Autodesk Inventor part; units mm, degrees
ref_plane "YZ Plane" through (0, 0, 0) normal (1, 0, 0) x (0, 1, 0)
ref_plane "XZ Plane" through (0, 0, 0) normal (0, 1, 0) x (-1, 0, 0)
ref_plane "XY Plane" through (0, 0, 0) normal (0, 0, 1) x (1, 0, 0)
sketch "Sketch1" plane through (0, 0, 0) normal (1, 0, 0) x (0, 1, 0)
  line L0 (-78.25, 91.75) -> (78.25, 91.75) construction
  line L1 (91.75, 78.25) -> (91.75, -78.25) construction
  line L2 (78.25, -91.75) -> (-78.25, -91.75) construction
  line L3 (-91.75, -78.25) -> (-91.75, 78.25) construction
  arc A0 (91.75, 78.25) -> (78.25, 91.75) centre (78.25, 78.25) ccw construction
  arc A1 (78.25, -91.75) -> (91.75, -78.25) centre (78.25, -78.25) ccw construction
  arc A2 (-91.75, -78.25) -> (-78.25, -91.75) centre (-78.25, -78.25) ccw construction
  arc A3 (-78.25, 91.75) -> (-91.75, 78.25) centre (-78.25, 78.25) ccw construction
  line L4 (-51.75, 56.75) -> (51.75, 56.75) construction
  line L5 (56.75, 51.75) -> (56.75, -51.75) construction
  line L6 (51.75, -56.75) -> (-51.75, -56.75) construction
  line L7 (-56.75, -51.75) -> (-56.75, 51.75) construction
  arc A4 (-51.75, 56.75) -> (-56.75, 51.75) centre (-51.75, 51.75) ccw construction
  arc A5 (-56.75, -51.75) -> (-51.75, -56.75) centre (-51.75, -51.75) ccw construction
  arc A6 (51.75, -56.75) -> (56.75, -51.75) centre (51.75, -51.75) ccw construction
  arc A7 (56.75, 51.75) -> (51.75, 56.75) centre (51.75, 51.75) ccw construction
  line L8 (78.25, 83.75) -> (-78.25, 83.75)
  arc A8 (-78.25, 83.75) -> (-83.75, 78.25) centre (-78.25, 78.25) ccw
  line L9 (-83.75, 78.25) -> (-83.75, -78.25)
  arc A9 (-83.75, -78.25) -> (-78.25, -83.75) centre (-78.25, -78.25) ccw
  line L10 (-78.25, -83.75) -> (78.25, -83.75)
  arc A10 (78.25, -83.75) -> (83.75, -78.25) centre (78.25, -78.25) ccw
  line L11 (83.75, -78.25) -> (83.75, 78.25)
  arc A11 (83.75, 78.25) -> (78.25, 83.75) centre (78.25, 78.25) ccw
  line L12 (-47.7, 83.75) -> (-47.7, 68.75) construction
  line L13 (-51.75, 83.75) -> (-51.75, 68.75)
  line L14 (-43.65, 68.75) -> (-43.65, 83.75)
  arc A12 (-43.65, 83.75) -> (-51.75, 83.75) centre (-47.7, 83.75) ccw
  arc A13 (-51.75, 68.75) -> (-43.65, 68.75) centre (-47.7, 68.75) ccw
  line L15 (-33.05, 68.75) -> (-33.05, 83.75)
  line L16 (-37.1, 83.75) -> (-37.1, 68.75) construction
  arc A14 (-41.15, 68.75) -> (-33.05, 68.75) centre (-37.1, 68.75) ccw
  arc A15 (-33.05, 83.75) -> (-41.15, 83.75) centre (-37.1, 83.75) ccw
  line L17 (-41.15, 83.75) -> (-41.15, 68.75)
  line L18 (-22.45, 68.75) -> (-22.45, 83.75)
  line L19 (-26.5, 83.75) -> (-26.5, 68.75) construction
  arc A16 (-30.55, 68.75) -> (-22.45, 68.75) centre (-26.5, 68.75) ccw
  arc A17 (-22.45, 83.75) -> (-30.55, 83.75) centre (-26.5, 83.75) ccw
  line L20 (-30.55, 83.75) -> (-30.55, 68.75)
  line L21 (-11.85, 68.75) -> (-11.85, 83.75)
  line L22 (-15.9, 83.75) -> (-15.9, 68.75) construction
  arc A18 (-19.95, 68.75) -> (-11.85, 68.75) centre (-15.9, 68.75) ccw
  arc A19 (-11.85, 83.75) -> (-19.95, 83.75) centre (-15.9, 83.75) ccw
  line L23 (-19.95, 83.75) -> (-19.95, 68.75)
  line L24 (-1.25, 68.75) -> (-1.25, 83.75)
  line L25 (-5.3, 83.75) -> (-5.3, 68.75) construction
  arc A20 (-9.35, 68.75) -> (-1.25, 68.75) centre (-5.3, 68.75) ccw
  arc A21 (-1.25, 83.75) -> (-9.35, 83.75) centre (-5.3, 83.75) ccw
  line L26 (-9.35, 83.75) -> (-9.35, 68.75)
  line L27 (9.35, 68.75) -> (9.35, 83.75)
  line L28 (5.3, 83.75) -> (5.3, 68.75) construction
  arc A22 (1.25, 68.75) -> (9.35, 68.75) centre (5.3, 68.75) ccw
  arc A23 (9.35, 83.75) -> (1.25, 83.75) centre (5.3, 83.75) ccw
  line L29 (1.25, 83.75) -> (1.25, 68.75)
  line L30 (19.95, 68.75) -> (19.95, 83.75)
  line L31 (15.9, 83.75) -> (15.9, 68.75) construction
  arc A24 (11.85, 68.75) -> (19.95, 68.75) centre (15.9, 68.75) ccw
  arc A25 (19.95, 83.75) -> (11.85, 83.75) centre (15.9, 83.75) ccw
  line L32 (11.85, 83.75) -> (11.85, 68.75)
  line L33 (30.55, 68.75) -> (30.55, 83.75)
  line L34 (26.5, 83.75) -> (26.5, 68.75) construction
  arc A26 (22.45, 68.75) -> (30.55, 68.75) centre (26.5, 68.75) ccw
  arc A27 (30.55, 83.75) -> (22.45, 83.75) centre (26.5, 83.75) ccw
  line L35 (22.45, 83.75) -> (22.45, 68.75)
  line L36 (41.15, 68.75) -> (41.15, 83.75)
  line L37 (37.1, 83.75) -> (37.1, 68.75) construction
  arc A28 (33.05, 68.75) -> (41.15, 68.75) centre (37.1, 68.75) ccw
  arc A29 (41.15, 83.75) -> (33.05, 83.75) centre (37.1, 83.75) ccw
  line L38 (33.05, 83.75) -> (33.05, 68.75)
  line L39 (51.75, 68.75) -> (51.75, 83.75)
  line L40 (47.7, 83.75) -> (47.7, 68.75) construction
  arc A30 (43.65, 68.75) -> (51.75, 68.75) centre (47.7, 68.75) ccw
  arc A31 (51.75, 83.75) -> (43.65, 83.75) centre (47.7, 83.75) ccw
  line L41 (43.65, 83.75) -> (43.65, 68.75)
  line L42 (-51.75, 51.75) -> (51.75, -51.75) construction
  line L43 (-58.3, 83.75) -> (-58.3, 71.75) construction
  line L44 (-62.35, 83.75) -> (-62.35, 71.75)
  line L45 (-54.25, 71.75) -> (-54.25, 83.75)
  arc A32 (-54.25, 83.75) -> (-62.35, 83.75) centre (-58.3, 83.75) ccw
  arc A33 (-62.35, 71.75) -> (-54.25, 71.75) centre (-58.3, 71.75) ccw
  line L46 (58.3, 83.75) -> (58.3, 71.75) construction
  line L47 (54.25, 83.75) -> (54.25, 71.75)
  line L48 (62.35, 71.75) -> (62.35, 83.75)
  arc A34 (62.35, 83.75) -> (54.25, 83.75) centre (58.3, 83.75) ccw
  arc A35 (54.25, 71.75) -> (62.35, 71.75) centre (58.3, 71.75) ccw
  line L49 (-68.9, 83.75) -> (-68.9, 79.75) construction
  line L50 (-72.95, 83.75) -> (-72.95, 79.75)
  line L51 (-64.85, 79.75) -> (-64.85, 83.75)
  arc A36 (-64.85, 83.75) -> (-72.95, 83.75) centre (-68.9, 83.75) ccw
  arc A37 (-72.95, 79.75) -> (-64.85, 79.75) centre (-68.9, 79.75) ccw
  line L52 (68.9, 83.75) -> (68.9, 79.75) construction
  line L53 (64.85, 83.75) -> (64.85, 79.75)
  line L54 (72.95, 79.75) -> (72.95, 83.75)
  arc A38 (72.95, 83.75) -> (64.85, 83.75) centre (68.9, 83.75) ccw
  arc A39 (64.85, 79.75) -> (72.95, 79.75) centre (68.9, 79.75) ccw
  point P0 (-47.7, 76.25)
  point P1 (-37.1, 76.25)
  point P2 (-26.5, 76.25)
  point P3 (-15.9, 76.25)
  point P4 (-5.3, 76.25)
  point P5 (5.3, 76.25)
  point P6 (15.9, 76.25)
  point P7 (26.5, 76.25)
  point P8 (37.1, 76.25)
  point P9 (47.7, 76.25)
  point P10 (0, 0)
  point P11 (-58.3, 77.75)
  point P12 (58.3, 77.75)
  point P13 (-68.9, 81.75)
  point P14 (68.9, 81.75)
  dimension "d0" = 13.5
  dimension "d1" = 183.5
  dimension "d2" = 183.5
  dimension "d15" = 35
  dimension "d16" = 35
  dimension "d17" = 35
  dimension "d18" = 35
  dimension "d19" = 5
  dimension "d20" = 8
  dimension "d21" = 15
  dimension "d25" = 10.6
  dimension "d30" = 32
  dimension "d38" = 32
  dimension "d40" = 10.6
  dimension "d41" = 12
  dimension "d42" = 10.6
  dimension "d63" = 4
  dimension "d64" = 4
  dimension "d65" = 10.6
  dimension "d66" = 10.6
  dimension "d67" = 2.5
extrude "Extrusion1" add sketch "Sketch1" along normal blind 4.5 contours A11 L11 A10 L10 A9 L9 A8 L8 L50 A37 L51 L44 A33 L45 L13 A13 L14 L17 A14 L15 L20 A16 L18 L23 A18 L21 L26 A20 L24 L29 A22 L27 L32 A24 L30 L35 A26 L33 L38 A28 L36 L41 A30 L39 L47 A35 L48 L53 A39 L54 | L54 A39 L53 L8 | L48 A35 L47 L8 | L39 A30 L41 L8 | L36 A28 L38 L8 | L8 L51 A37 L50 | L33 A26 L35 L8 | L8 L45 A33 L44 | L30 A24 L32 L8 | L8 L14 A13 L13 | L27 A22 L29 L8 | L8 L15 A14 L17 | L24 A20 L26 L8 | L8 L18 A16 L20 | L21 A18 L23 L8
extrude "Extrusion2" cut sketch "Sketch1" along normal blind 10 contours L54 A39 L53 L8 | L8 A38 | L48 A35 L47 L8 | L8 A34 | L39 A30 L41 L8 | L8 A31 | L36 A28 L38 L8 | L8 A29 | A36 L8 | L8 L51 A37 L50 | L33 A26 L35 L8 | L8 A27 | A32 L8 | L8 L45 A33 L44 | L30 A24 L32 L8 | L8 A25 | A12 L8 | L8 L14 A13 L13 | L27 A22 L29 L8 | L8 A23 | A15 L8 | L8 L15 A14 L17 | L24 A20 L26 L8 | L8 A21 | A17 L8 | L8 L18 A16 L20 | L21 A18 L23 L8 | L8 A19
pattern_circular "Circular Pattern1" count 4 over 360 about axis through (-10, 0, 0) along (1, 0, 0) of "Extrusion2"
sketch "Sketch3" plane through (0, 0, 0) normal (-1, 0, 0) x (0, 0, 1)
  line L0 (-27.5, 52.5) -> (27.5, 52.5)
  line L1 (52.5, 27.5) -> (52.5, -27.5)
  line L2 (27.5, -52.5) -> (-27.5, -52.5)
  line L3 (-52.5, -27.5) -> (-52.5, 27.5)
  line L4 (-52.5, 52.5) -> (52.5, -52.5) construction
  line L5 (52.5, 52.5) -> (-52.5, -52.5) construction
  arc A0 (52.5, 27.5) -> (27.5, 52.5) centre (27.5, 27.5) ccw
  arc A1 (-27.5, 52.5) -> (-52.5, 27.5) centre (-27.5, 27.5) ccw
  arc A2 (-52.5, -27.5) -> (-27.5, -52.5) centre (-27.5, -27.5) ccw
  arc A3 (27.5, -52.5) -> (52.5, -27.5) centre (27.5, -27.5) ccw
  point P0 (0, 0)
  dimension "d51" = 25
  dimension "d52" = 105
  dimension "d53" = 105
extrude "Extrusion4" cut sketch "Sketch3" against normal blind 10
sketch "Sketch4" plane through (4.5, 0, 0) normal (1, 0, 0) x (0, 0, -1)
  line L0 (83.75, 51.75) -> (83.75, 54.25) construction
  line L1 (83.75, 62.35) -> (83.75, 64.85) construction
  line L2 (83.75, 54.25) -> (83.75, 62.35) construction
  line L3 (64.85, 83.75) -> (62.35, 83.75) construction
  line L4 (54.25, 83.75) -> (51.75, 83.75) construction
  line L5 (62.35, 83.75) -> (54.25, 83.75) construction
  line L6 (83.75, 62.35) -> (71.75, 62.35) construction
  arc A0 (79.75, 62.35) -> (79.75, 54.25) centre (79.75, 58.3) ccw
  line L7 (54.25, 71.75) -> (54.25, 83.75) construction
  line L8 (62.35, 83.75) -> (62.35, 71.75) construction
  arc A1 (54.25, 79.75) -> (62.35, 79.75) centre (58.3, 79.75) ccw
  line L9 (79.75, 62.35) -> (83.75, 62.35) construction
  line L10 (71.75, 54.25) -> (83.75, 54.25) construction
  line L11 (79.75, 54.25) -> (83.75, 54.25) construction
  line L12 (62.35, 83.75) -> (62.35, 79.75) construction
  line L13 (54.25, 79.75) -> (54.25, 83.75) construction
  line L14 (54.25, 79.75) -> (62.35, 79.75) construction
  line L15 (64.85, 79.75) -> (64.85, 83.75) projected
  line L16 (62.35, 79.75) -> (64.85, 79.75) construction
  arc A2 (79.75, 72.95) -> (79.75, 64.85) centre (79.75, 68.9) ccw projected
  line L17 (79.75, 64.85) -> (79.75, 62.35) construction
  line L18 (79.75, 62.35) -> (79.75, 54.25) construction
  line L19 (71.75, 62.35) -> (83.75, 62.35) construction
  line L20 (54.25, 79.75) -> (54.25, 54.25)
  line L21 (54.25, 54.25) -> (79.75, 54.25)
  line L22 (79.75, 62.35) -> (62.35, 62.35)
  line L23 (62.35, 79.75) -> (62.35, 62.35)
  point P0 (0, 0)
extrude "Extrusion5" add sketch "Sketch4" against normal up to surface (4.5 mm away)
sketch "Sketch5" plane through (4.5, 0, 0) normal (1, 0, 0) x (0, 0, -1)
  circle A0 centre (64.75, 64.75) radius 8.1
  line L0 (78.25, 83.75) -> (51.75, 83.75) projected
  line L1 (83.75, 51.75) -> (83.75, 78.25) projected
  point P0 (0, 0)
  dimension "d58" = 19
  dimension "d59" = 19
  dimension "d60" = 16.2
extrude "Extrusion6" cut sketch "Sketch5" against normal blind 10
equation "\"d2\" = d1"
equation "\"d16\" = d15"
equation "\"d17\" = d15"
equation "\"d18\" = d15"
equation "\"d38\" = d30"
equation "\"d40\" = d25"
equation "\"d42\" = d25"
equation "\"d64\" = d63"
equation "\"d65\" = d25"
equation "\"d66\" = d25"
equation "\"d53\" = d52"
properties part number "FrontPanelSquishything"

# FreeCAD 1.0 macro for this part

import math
import FreeCAD as App
import Part
import Sketcher
Q = App.Units.Quantity

doc = App.newDocument("Part")
body = doc.addObject("PartDesign::Body", "Body")

# Sketch on YZ plane
sketch1 = body.newObject("Sketcher::SketchObject", "Sketch")
sketch1.AttachmentSupport = (doc.getObject("YZ_Plane"), [""])
sketch1.MapMode = "FlatFace"
sketch1.addGeometry([
    Part.ArcOfCircle(Part.Circle(App.Vector(78.25, 78.25, 0), App.Vector(0, 0, 1), 5.5), math.radians(0), math.radians(90)),  # 0
    Part.LineSegment(App.Vector(78.25, 83.75, 0), App.Vector(-78.25, 83.75, 0)),  # 1
    Part.ArcOfCircle(Part.Circle(App.Vector(-78.25, 78.25, 0), App.Vector(0, 0, 1), 5.5), math.radians(90), math.radians(180)),  # 2
    Part.LineSegment(App.Vector(-83.75, 78.25, 0), App.Vector(-83.75, -78.25, 0)),  # 3
    Part.ArcOfCircle(Part.Circle(App.Vector(-78.25, -78.25, 0), App.Vector(0, 0, 1), 5.5), math.radians(180), math.radians(270)),  # 4
    Part.LineSegment(App.Vector(-78.25, -83.75, 0), App.Vector(78.25, -83.75, 0)),  # 5
    Part.ArcOfCircle(Part.Circle(App.Vector(78.25, -78.25, 0), App.Vector(0, 0, 1), 5.5), math.radians(-90), math.radians(0)),  # 6
    Part.LineSegment(App.Vector(83.75, -78.25, 0), App.Vector(83.75, 78.25, 0)),  # 7
], False)
sketch1.addConstraint([
    Sketcher.Constraint("Tangent", 0, 2, 1, 1),
    Sketcher.Constraint("Tangent", 1, 2, 2, 1),
    Sketcher.Constraint("Tangent", 2, 2, 3, 1),
    Sketcher.Constraint("Tangent", 3, 2, 4, 1),
    Sketcher.Constraint("Tangent", 4, 2, 5, 1),
    Sketcher.Constraint("Tangent", 5, 2, 6, 1),
    Sketcher.Constraint("Tangent", 6, 2, 7, 1),
    Sketcher.Constraint("Tangent", 7, 2, 0, 1),
    Sketcher.Constraint("Horizontal", 1),
    Sketcher.Constraint("Vertical", 3),
    Sketcher.Constraint("Horizontal", 5),
    Sketcher.Constraint("Vertical", 7),
    Sketcher.Constraint("Equal", 0, 2),
    Sketcher.Constraint("Equal", 2, 4),
    Sketcher.Constraint("Equal", 4, 6),
    Sketcher.Constraint("Symmetric", 0, 3, 4, 3, -1, 1),
    Sketcher.Constraint("Equal", 5, 3),
    Sketcher.Constraint("Radius", 0, Q("5.5 mm")),
    Sketcher.Constraint("DistanceX", 1, 2, 1, 1, Q("156.5 mm")),
])
pad1 = body.newObject("PartDesign::Pad", "Pad")
pad1.Profile = sketch1
pad1.Length = 4.5

# Sketch on YZ plane
sketch2 = body.newObject("Sketcher::SketchObject", "Sketch001")
sketch2.AttachmentSupport = (doc.getObject("YZ_Plane"), [""])
sketch2.MapMode = "FlatFace"
sketch2.addGeometry([
    Part.LineSegment(App.Vector(72.95, 79.75, 0), App.Vector(72.95, 83.75, 0)),  # 0
    Part.ArcOfCircle(Part.Circle(App.Vector(68.9, 83.75, 0), App.Vector(0, 0, 1), 4.05), math.radians(0), math.radians(180)),  # 1
    Part.LineSegment(App.Vector(64.85, 83.75, 0), App.Vector(64.85, 79.75, 0)),  # 2
    Part.ArcOfCircle(Part.Circle(App.Vector(68.9, 79.75, 0), App.Vector(0, 0, 1), 4.05), math.radians(180), math.radians(360)),  # 3
    Part.LineSegment(App.Vector(62.35, 71.75, 0), App.Vector(62.35, 83.75, 0)),  # 4
    Part.ArcOfCircle(Part.Circle(App.Vector(58.3, 83.75, 0), App.Vector(0, 0, 1), 4.05), math.radians(0), math.radians(180)),  # 5
    Part.LineSegment(App.Vector(54.25, 83.75, 0), App.Vector(54.25, 71.75, 0)),  # 6
    Part.ArcOfCircle(Part.Circle(App.Vector(58.3, 71.75, 0), App.Vector(0, 0, 1), 4.05), math.radians(180), math.radians(360)),  # 7
    Part.LineSegment(App.Vector(51.75, 68.75, 0), App.Vector(51.75, 83.75, 0)),  # 8
    Part.ArcOfCircle(Part.Circle(App.Vector(47.7, 83.75, 0), App.Vector(0, 0, 1), 4.05), math.radians(0), math.radians(180)),  # 9
    Part.LineSegment(App.Vector(43.65, 83.75, 0), App.Vector(43.65, 68.75, 0)),  # 10
    Part.ArcOfCircle(Part.Circle(App.Vector(47.7, 68.75, 0), App.Vector(0, 0, 1), 4.05), math.radians(180), math.radians(360)),  # 11
    Part.LineSegment(App.Vector(41.15, 68.75, 0), App.Vector(41.15, 83.75, 0)),  # 12
    Part.ArcOfCircle(Part.Circle(App.Vector(37.1, 83.75, 0), App.Vector(0, 0, 1), 4.05), math.radians(0), math.radians(180)),  # 13
    Part.LineSegment(App.Vector(33.05, 83.75, 0), App.Vector(33.05, 68.75, 0)),  # 14
    Part.ArcOfCircle(Part.Circle(App.Vector(37.1, 68.75, 0), App.Vector(0, 0, 1), 4.05), math.radians(180), math.radians(360)),  # 15
    Part.ArcOfCircle(Part.Circle(App.Vector(-68.9, 83.75, 0), App.Vector(0, 0, 1), 4.05), math.radians(0), math.radians(180)),  # 16
    Part.LineSegment(App.Vector(-72.95, 83.75, 0), App.Vector(-72.95, 79.75, 0)),  # 17
    Part.ArcOfCircle(Part.Circle(App.Vector(-68.9, 79.75, 0), App.Vector(0, 0, 1), 4.05), math.radians(180), math.radians(360)),  # 18
    Part.LineSegment(App.Vector(-64.85, 79.75, 0), App.Vector(-64.85, 83.75, 0)),  # 19
    Part.LineSegment(App.Vector(30.55, 68.75, 0), App.Vector(30.55, 83.75, 0)),  # 20
    Part.ArcOfCircle(Part.Circle(App.Vector(26.5, 83.75, 0), App.Vector(0, 0, 1), 4.05), math.radians(0), math.radians(180)),  # 21
    Part.LineSegment(App.Vector(22.45, 83.75, 0), App.Vector(22.45, 68.75, 0)),  # 22
    Part.ArcOfCircle(Part.Circle(App.Vector(26.5, 68.75, 0), App.Vector(0, 0, 1), 4.05), math.radians(180), math.radians(360)),  # 23
    Part.ArcOfCircle(Part.Circle(App.Vector(-58.3, 83.75, 0), App.Vector(0, 0, 1), 4.05), math.radians(0), math.radians(180)),  # 24
    Part.LineSegment(App.Vector(-62.35, 83.75, 0), App.Vector(-62.35, 71.75, 0)),  # 25
    Part.ArcOfCircle(Part.Circle(App.Vector(-58.3, 71.75, 0), App.Vector(0, 0, 1), 4.05), math.radians(180), math.radians(360)),  # 26
    Part.LineSegment(App.Vector(-54.25, 71.75, 0), App.Vector(-54.25, 83.75, 0)),  # 27
    Part.LineSegment(App.Vector(19.95, 68.75, 0), App.Vector(19.95, 83.75, 0)),  # 28
    Part.ArcOfCircle(Part.Circle(App.Vector(15.9, 83.75, 0), App.Vector(0, 0, 1), 4.05), math.radians(0), math.radians(180)),  # 29
    Part.LineSegment(App.Vector(11.85, 83.75, 0), App.Vector(11.85, 68.75, 0)),  # 30
    Part.ArcOfCircle(Part.Circle(App.Vector(15.9, 68.75, 0), App.Vector(0, 0, 1), 4.05), math.radians(180), math.radians(360)),  # 31
    Part.ArcOfCircle(Part.Circle(App.Vector(-47.7, 83.75, 0), App.Vector(0, 0, 1), 4.05), math.radians(0), math.radians(180)),  # 32
    Part.LineSegment(App.Vector(-51.75, 83.75, 0), App.Vector(-51.75, 68.75, 0)),  # 33
    Part.ArcOfCircle(Part.Circle(App.Vector(-47.7, 68.75, 0), App.Vector(0, 0, 1), 4.05), math.radians(180), math.radians(360)),  # 34
    Part.LineSegment(App.Vector(-43.65, 68.75, 0), App.Vector(-43.65, 83.75, 0)),  # 35
    Part.LineSegment(App.Vector(9.35, 68.75, 0), App.Vector(9.35, 83.75, 0)),  # 36
    Part.ArcOfCircle(Part.Circle(App.Vector(5.3, 83.75, 0), App.Vector(0, 0, 1), 4.05), math.radians(0), math.radians(180)),  # 37
    Part.LineSegment(App.Vector(1.25, 83.75, 0), App.Vector(1.25, 68.75, 0)),  # 38
    Part.ArcOfCircle(Part.Circle(App.Vector(5.3, 68.75, 0), App.Vector(0, 0, 1), 4.05), math.radians(180), math.radians(360)),  # 39
    Part.ArcOfCircle(Part.Circle(App.Vector(-37.1, 83.75, 0), App.Vector(0, 0, 1), 4.05), math.radians(0), math.radians(180)),  # 40
    Part.LineSegment(App.Vector(-41.15, 83.75, 0), App.Vector(-41.15, 68.75, 0)),  # 41
    Part.ArcOfCircle(Part.Circle(App.Vector(-37.1, 68.75, 0), App.Vector(0, 0, 1), 4.05), math.radians(180), math.radians(360)),  # 42
    Part.LineSegment(App.Vector(-33.05, 68.75, 0), App.Vector(-33.05, 83.75, 0)),  # 43
    Part.LineSegment(App.Vector(-1.25, 68.75, 0), App.Vector(-1.25, 83.75, 0)),  # 44
    Part.ArcOfCircle(Part.Circle(App.Vector(-5.3, 83.75, 0), App.Vector(0, 0, 1), 4.05), math.radians(0), math.radians(180)),  # 45
    Part.LineSegment(App.Vector(-9.35, 83.75, 0), App.Vector(-9.35, 68.75, 0)),  # 46
    Part.ArcOfCircle(Part.Circle(App.Vector(-5.3, 68.75, 0), App.Vector(0, 0, 1), 4.05), math.radians(180), math.radians(360)),  # 47
    Part.ArcOfCircle(Part.Circle(App.Vector(-26.5, 83.75, 0), App.Vector(0, 0, 1), 4.05), math.radians(0), math.radians(180)),  # 48
    Part.LineSegment(App.Vector(-30.55, 83.75, 0), App.Vector(-30.55, 68.75, 0)),  # 49
    Part.ArcOfCircle(Part.Circle(App.Vector(-26.5, 68.75, 0), App.Vector(0, 0, 1), 4.05), math.radians(180), math.radians(360)),  # 50
    Part.LineSegment(App.Vector(-22.45, 68.75, 0), App.Vector(-22.45, 83.75, 0)),  # 51
    Part.LineSegment(App.Vector(-11.85, 68.75, 0), App.Vector(-11.85, 83.75, 0)),  # 52
    Part.ArcOfCircle(Part.Circle(App.Vector(-15.9, 83.75, 0), App.Vector(0, 0, 1), 4.05), math.radians(0), math.radians(180)),  # 53
    Part.LineSegment(App.Vector(-19.95, 83.75, 0), App.Vector(-19.95, 68.75, 0)),  # 54
    Part.ArcOfCircle(Part.Circle(App.Vector(-15.9, 68.75, 0), App.Vector(0, 0, 1), 4.05), math.radians(180), math.radians(360)),  # 55
], False)
sketch2.addConstraint([
    Sketcher.Constraint("Tangent", 0, 2, 1, 1),
    Sketcher.Constraint("Tangent", 1, 2, 2, 1),
    Sketcher.Constraint("Tangent", 2, 2, 3, 1),
    Sketcher.Constraint("Tangent", 3, 2, 0, 1),
    Sketcher.Constraint("Tangent", 4, 2, 5, 1),
    Sketcher.Constraint("Tangent", 5, 2, 6, 1),
    Sketcher.Constraint("Tangent", 6, 2, 7, 1),
    Sketcher.Constraint("Tangent", 7, 2, 4, 1),
    Sketcher.Constraint("Tangent", 8, 2, 9, 1),
    Sketcher.Constraint("Tangent", 9, 2, 10, 1),
    Sketcher.Constraint("Tangent", 10, 2, 11, 1),
    Sketcher.Constraint("Tangent", 11, 2, 8, 1),
    Sketcher.Constraint("Tangent", 12, 2, 13, 1),
    Sketcher.Constraint("Tangent", 13, 2, 14, 1),
    Sketcher.Constraint("Tangent", 14, 2, 15, 1),
    Sketcher.Constraint("Tangent", 15, 2, 12, 1),
    Sketcher.Constraint("Tangent", 16, 2, 17, 1),
    Sketcher.Constraint("Tangent", 17, 2, 18, 1),
    Sketcher.Constraint("Tangent", 18, 2, 19, 1),
    Sketcher.Constraint("Tangent", 19, 2, 16, 1),
    Sketcher.Constraint("Tangent", 20, 2, 21, 1),
    Sketcher.Constraint("Tangent", 21, 2, 22, 1),
    Sketcher.Constraint("Tangent", 22, 2, 23, 1),
    Sketcher.Constraint("Tangent", 23, 2, 20, 1),
    Sketcher.Constraint("Tangent", 24, 2, 25, 1),
    Sketcher.Constraint("Tangent", 25, 2, 26, 1),
    Sketcher.Constraint("Tangent", 26, 2, 27, 1),
    Sketcher.Constraint("Tangent", 27, 2, 24, 1),
    Sketcher.Constraint("Tangent", 28, 2, 29, 1),
    Sketcher.Constraint("Tangent", 29, 2, 30, 1),
    Sketcher.Constraint("Tangent", 30, 2, 31, 1),
    Sketcher.Constraint("Tangent", 31, 2, 28, 1),
    Sketcher.Constraint("Tangent", 32, 2, 33, 1),
    Sketcher.Constraint("Tangent", 33, 2, 34, 1),
    Sketcher.Constraint("Tangent", 34, 2, 35, 1),
    Sketcher.Constraint("Tangent", 35, 2, 32, 1),
    Sketcher.Constraint("Tangent", 36, 2, 37, 1),
    Sketcher.Constraint("Tangent", 37, 2, 38, 1),
    Sketcher.Constraint("Tangent", 38, 2, 39, 1),
    Sketcher.Constraint("Tangent", 39, 2, 36, 1),
    Sketcher.Constraint("Tangent", 40, 2, 41, 1),
    Sketcher.Constraint("Tangent", 41, 2, 42, 1),
    Sketcher.Constraint("Tangent", 42, 2, 43, 1),
    Sketcher.Constraint("Tangent", 43, 2, 40, 1),
    Sketcher.Constraint("Tangent", 44, 2, 45, 1),
    Sketcher.Constraint("Tangent", 45, 2, 46, 1),
    Sketcher.Constraint("Tangent", 46, 2, 47, 1),
    Sketcher.Constraint("Tangent", 47, 2, 44, 1),
    Sketcher.Constraint("Tangent", 48, 2, 49, 1),
    Sketcher.Constraint("Tangent", 49, 2, 50, 1),
    Sketcher.Constraint("Tangent", 50, 2, 51, 1),
    Sketcher.Constraint("Tangent", 51, 2, 48, 1),
    Sketcher.Constraint("Tangent", 52, 2, 53, 1),
    Sketcher.Constraint("Tangent", 53, 2, 54, 1),
    Sketcher.Constraint("Tangent", 54, 2, 55, 1),
    Sketcher.Constraint("Tangent", 55, 2, 52, 1),
    Sketcher.Constraint("Vertical", 0),
    Sketcher.Constraint("Vertical", 2),
    Sketcher.Constraint("Vertical", 4),
    Sketcher.Constraint("Vertical", 6),
    Sketcher.Constraint("Vertical", 8),
    Sketcher.Constraint("Vertical", 10),
    Sketcher.Constraint("Vertical", 12),
    Sketcher.Constraint("Vertical", 14),
    Sketcher.Constraint("Vertical", 17),
    Sketcher.Constraint("Vertical", 19),
    Sketcher.Constraint("Vertical", 20),
    Sketcher.Constraint("Vertical", 22),
    Sketcher.Constraint("Vertical", 25),
    Sketcher.Constraint("Vertical", 27),
    Sketcher.Constraint("Vertical", 28),
    Sketcher.Constraint("Vertical", 30),
    Sketcher.Constraint("Vertical", 33),
    Sketcher.Constraint("Vertical", 35),
    Sketcher.Constraint("Vertical", 36),
    Sketcher.Constraint("Vertical", 38),
    Sketcher.Constraint("Vertical", 41),
    Sketcher.Constraint("Vertical", 43),
    Sketcher.Constraint("Vertical", 44),
    Sketcher.Constraint("Vertical", 46),
    Sketcher.Constraint("Vertical", 49),
    Sketcher.Constraint("Vertical", 51),
    Sketcher.Constraint("Vertical", 52),
    Sketcher.Constraint("Vertical", 54),
    Sketcher.Constraint("Equal", 3, 5),
    Sketcher.Constraint("Equal", 7, 9),
    Sketcher.Constraint("Equal", 11, 13),
    Sketcher.Constraint("Equal", 15, 16),
    Sketcher.Constraint("Equal", 18, 21),
    Sketcher.Constraint("Equal", 23, 24),
    Sketcher.Constraint("Equal", 26, 29),
    Sketcher.Constraint("Equal", 31, 32),
    Sketcher.Constraint("Equal", 34, 37),
    Sketcher.Constraint("Equal", 39, 40),
    Sketcher.Constraint("Equal", 42, 45),
    Sketcher.Constraint("Equal", 47, 48),
    Sketcher.Constraint("Equal", 50, 53),
    Sketcher.Constraint("Symmetric", 1, 3, 16, 3, -2),
    Sketcher.Constraint("Symmetric", 5, 3, 24, 3, -2),
    Sketcher.Constraint("Symmetric", 9, 3, 32, 3, -2),
    Sketcher.Constraint("Symmetric", 13, 3, 40, 3, -2),
    Sketcher.Constraint("Symmetric", 37, 3, 45, 3, -2),
    Sketcher.Constraint("Symmetric", 21, 3, 48, 3, -2),
    Sketcher.Constraint("Symmetric", 29, 3, 53, 3, -2),
    Sketcher.Constraint("Horizontal", 1, 3, 5, 3),
    Sketcher.Constraint("Horizontal", 5, 3, 9, 3),
    Sketcher.Constraint("Horizontal", 9, 3, 13, 3),
    Sketcher.Constraint("Horizontal", 11, 3, 15, 3),
    Sketcher.Constraint("Horizontal", 3, 3, 18, 3),
    Sketcher.Constraint("Horizontal", 16, 3, 21, 3),
    Sketcher.Constraint("Horizontal", 15, 3, 23, 3),
    Sketcher.Constraint("Horizontal", 7, 3, 26, 3),
    Sketcher.Constraint("Horizontal", 24, 3, 29, 3),
    Sketcher.Constraint("Horizontal", 23, 3, 31, 3),
    Sketcher.Constraint("Horizontal", 31, 3, 34, 3),
    Sketcher.Constraint("Horizontal", 32, 3, 37, 3),
    Sketcher.Constraint("Horizontal", 34, 3, 39, 3),
    Sketcher.Constraint("Horizontal", 39, 3, 42, 3),
    Sketcher.Constraint("Horizontal", 42, 3, 47, 3),
    Sketcher.Constraint("Horizontal", 47, 3, 50, 3),
    Sketcher.Constraint("Horizontal", 50, 3, 55, 3),
    Sketcher.Constraint("DistanceY", 0, 1, 0, 2, Q("4 mm")),
    Sketcher.Constraint("DistanceY", 4, 1, 4, 2, Q("12 mm")),
    Sketcher.Constraint("DistanceY", 8, 1, 8, 2, Q("15 mm")),
    Sketcher.Constraint("Radius", 1, Q("4.05 mm")),
    Sketcher.Constraint("DistanceX", -1, 1, 1, 3, Q("68.9 mm")),
    Sketcher.Constraint("DistanceX", -1, 1, 5, 3, Q("58.3 mm")),
    Sketcher.Constraint("DistanceX", -1, 1, 9, 3, Q("47.7 mm")),
    Sketcher.Constraint("DistanceX", -1, 1, 13, 3, Q("37.1 mm")),
    Sketcher.Constraint("DistanceX", -1, 1, 21, 3, Q("26.5 mm")),
    Sketcher.Constraint("DistanceX", -1, 1, 29, 3, Q("15.9 mm")),
    Sketcher.Constraint("DistanceX", -1, 1, 37, 3, Q("5.3 mm")),
    Sketcher.Constraint("DistanceY", -1, 1, 1, 3, Q("83.75 mm")),
])
pocket1 = body.newObject("PartDesign::Pocket", "Pocket")
pocket1.Profile = sketch2
pocket1.Length = 10
pocket1.Reversed = True
doc.recompute()

polarpattern = body.newObject("PartDesign::PolarPattern", "PolarPattern")
polarpattern.Originals = [pocket1]
polarpattern.Axis = (doc.getObject("X_Axis"), [""])
polarpattern.Angle = 360
polarpattern.Occurrences = 4
body.Tip = polarpattern

# Sketch on YZ plane
sketch3 = body.newObject("Sketcher::SketchObject", "Sketch002")
sketch3.AttachmentSupport = (doc.getObject("YZ_Plane"), [""])
sketch3.MapMode = "FlatFace"
sketch3.addGeometry([
    Part.LineSegment(App.Vector(52.5, 27.5, 0), App.Vector(52.5, -27.5, 0)),  # 0
    Part.ArcOfCircle(Part.Circle(App.Vector(27.5, -27.5, 0), App.Vector(0, 0, 1), 25), math.radians(-90), math.radians(0)),  # 1
    Part.LineSegment(App.Vector(27.5, -52.5, 0), App.Vector(-27.5, -52.5, 0)),  # 2
    Part.ArcOfCircle(Part.Circle(App.Vector(-27.5, -27.5, 0), App.Vector(0, 0, 1), 25), math.radians(180), math.radians(270)),  # 3
    Part.LineSegment(App.Vector(-52.5, -27.5, 0), App.Vector(-52.5, 27.5, 0)),  # 4
    Part.ArcOfCircle(Part.Circle(App.Vector(-27.5, 27.5, 0), App.Vector(0, 0, 1), 25), math.radians(90), math.radians(180)),  # 5
    Part.LineSegment(App.Vector(-27.5, 52.5, 0), App.Vector(27.5, 52.5, 0)),  # 6
    Part.ArcOfCircle(Part.Circle(App.Vector(27.5, 27.5, 0), App.Vector(0, 0, 1), 25), math.radians(0), math.radians(90)),  # 7
], False)
sketch3.addConstraint([
    Sketcher.Constraint("Tangent", 0, 2, 1, 2),
    Sketcher.Constraint("Tangent", 1, 1, 2, 1),
    Sketcher.Constraint("Tangent", 2, 2, 3, 2),
    Sketcher.Constraint("Tangent", 3, 1, 4, 1),
    Sketcher.Constraint("Tangent", 4, 2, 5, 2),
    Sketcher.Constraint("Tangent", 5, 1, 6, 1),
    Sketcher.Constraint("Tangent", 6, 2, 7, 2),
    Sketcher.Constraint("Tangent", 7, 1, 0, 1),
    Sketcher.Constraint("Vertical", 0),
    Sketcher.Constraint("Horizontal", 2),
    Sketcher.Constraint("Vertical", 4),
    Sketcher.Constraint("Horizontal", 6),
    Sketcher.Constraint("Equal", 1, 3),
    Sketcher.Constraint("Equal", 3, 5),
    Sketcher.Constraint("Equal", 5, 7),
    Sketcher.Constraint("Symmetric", 1, 3, 5, 3, -1, 1),
    Sketcher.Constraint("Equal", 6, 0),
    Sketcher.Constraint("Radius", 1, Q("25 mm")),
    Sketcher.Constraint("DistanceX", 2, 2, 2, 1, Q("55 mm")),
])
pocket2 = body.newObject("PartDesign::Pocket", "Pocket001")
pocket2.Profile = sketch3
pocket2.Length = 10
pocket2.Reversed = True

# Sketch on YZ plane
sketch4 = body.newObject("Sketcher::SketchObject", "Sketch003")
sketch4.AttachmentSupport = (doc.getObject("YZ_Plane"), [""])
sketch4.MapMode = "FlatFace"
sketch4.AttachmentOffset = App.Placement(App.Vector(0, 0, 4.5), App.Rotation())
sketch4.addGeometry([
    Part.ArcOfCircle(Part.Circle(App.Vector(58.3, -79.75, 0), App.Vector(0, 0, 1), 4.05), math.radians(0), math.radians(180)),  # 0
    Part.LineSegment(App.Vector(62.35, -79.75, 0), App.Vector(62.35, -62.35, 0)),  # 1
    Part.LineSegment(App.Vector(62.35, -62.35, 0), App.Vector(79.75, -62.35, 0)),  # 2
    Part.ArcOfCircle(Part.Circle(App.Vector(79.75, -58.3, 0), App.Vector(0, 0, 1), 4.05), math.radians(90), math.radians(270)),  # 3
    Part.LineSegment(App.Vector(79.75, -54.25, 0), App.Vector(54.25, -54.25, 0)),  # 4
    Part.LineSegment(App.Vector(54.25, -54.25, 0), App.Vector(54.25, -79.75, 0)),  # 5
], False)
sketch4.addConstraint([
    Sketcher.Constraint("Tangent", 0, 1, 1, 1),
    Sketcher.Constraint("Coincident", 1, 2, 2, 1),
    Sketcher.Constraint("Tangent", 2, 2, 3, 2),
    Sketcher.Constraint("Tangent", 3, 1, 4, 1),
    Sketcher.Constraint("Coincident", 4, 2, 5, 1),
    Sketcher.Constraint("Tangent", 5, 2, 0, 2),
    Sketcher.Constraint("Vertical", 1),
    Sketcher.Constraint("Horizontal", 2),
    Sketcher.Constraint("Horizontal", 4),
    Sketcher.Constraint("Vertical", 5),
    Sketcher.Constraint("Equal", 0, 3),
    Sketcher.Constraint("Equal", 2, 1),
    Sketcher.Constraint("Radius", 0, Q("4.05 mm")),
    Sketcher.Constraint("DistanceX", 2, 1, 2, 2, Q("17.4 mm")),
    Sketcher.Constraint("DistanceX", -1, 1, 0, 3, Q("58.3 mm")),
    Sketcher.Constraint("DistanceY", 3, 3, -1, 1, Q("58.3 mm")),
])
pad2 = body.newObject("PartDesign::Pad", "Pad001")
pad2.Profile = sketch4
pad2.Length = 4.5
pad2.Reversed = True

# Sketch on YZ plane
sketch5 = body.newObject("Sketcher::SketchObject", "Sketch004")
sketch5.AttachmentSupport = (doc.getObject("YZ_Plane"), [""])
sketch5.MapMode = "FlatFace"
sketch5.AttachmentOffset = App.Placement(App.Vector(0, 0, 4.5), App.Rotation())
sketch5.addGeometry(Part.Circle(App.Vector(64.75, -64.75, 0), App.Vector(0, 0, 1), 8.1), False)
sketch5.addConstraint([
    Sketcher.Constraint("Diameter", 0, Q("16.2 mm")),
    Sketcher.Constraint("DistanceX", -1, 1, 0, 3, Q("64.75 mm")),
    Sketcher.Constraint("DistanceY", 0, 3, -1, 1, Q("64.75 mm")),
])
pocket3 = body.newObject("PartDesign::Pocket", "Pocket002")
pocket3.Profile = sketch5
pocket3.Length = 10

doc.recompute()
